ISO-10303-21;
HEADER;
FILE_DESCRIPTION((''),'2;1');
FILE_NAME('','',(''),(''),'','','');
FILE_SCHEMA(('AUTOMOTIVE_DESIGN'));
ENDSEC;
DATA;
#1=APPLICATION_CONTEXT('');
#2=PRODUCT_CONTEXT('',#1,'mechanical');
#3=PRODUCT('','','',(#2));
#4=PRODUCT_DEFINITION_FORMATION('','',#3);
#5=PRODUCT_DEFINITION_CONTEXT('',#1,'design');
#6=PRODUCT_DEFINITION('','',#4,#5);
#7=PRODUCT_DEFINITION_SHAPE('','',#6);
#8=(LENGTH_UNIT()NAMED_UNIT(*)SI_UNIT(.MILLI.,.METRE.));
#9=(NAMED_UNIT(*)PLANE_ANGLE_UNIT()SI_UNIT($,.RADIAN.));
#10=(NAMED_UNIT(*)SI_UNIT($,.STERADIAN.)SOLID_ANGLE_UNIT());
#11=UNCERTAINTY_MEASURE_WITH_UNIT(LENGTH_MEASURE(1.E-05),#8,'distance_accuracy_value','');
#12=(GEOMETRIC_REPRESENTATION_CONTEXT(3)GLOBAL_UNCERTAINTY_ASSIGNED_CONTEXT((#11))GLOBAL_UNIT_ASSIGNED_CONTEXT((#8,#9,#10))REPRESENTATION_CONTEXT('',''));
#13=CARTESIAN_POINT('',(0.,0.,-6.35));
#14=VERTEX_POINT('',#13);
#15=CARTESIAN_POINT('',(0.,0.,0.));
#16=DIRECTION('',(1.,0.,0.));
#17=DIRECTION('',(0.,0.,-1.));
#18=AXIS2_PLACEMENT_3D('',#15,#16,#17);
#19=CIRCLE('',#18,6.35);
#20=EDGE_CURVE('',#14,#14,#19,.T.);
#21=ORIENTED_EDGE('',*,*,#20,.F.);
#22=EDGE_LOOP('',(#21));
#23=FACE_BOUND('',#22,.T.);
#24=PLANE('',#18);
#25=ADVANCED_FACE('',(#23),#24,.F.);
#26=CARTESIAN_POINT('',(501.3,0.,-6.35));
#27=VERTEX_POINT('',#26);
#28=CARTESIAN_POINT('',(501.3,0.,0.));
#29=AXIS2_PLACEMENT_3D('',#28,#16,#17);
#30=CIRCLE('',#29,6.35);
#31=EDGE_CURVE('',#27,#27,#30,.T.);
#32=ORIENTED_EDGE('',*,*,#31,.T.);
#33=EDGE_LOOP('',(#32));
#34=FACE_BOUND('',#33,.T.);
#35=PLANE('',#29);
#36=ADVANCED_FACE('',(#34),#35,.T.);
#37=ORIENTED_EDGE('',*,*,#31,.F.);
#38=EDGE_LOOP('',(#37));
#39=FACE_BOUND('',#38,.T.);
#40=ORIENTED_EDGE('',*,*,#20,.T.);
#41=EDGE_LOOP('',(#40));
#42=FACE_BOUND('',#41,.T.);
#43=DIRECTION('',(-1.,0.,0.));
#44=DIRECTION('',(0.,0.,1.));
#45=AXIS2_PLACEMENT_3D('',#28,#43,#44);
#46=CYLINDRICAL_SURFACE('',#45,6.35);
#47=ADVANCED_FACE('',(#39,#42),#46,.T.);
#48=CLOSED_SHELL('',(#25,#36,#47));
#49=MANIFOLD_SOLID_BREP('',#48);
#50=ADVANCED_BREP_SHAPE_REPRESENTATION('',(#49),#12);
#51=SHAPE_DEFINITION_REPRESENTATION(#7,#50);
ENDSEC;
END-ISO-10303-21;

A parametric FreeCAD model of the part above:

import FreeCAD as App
import Part
import Sketcher

V = App.Vector

doc = App.newDocument("Part")
body = doc.addObject("PartDesign::Body", "Body")

# Sketch on YZ plane
sketch1 = body.newObject("Sketcher::SketchObject", "Sketch")
sketch1.AttachmentSupport = (doc.getObject("YZ_Plane"), [""])
sketch1.MapMode = "FlatFace"
sketch1.addGeometry(Part.Circle(V(0, 0, 0), V(0, 0, 1), 6), False)
sketch1.addConstraint(Sketcher.Constraint("Coincident", 0, 3, -1, 1))
sketch1.addConstraint(Sketcher.Constraint("Diameter", 0, 12.7))
pad1 = body.newObject("PartDesign::Pad", "Pad")
pad1.Profile = sketch1
pad1.Length = 501.3

doc.recompute()
